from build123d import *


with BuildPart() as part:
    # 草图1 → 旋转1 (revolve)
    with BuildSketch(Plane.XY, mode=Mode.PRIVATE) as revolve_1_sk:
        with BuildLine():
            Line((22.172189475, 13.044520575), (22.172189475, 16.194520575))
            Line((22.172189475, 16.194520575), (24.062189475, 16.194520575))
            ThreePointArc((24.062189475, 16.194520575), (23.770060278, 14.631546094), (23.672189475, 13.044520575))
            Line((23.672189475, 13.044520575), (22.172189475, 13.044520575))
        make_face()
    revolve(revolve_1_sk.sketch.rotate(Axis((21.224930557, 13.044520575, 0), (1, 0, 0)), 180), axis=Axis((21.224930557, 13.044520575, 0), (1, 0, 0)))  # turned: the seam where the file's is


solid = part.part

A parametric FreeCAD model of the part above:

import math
import FreeCAD as App
import Part
import Sketcher

V = App.Vector

doc = App.newDocument("Part")
params = doc.addObject("Spreadsheet::Sheet", "Params")
for row, (alias, value) in enumerate([
    ("sketch1_width", "1.5 mm"),
    ("sketch1_width2", "1.89 mm"),
    ("sketch1_height", "3.15 mm"),
    ("revolution_angle", "360 deg"),
], start=1):
    params.set(f"A{row}", alias)
    params.set(f"B{row}", "=" + value)
    params.setAlias(f"B{row}", alias)

body = doc.addObject("PartDesign::Body", "Body")

# Sketch on XY plane
sketch1 = body.newObject("Sketcher::SketchObject", "Sketch")
sketch1.AttachmentSupport = (doc.getObject("XY_Plane"), [""])
sketch1.MapMode = "FlatFace"
sketch1.addGeometry([
    Part.LineSegment(V(22.2, 16.2, 0), V(22.2, 13, 0)),
    Part.LineSegment(V(22.2, 13, 0), V(23.7, 13, 0)),
    Part.ArcOfCircle(Part.Circle(V(36.6, 13, 0), V(0, 0, 1), 12.9), math.radians(165.88), math.radians(180)),
    Part.LineSegment(V(24.1, 16.2, 0), V(22.2, 16.2, 0)),
], False)
sketch1.addGeometry(Part.LineSegment(V(22.2, 13, 0), V(36.6, 13, 0)), True)  # axis
sketch1.addConstraint([
    Sketcher.Constraint("Coincident", 0, 2, 1, 1),
    Sketcher.Constraint("Coincident", 1, 2, 2, 2),
    Sketcher.Constraint("Coincident", 2, 1, 3, 1),
    Sketcher.Constraint("Coincident", 3, 2, 0, 1),
    Sketcher.Constraint("Vertical", 0),
    Sketcher.Constraint("Horizontal", 1),
    Sketcher.Constraint("Horizontal", 3),
    Sketcher.Constraint("Horizontal", 4),
    Sketcher.Constraint("Coincident", 4, 1, 0, 2),
    Sketcher.Constraint("Coincident", 4, 2, 2, 3),
    Sketcher.Constraint("DistanceX", 1, 1, 1, 2, 1.5),
    Sketcher.Constraint("DistanceX", 3, 2, 3, 1, 1.89),
    Sketcher.Constraint("DistanceY", 0, 2, 0, 1, 3.15),
    Sketcher.Constraint("DistanceY", -1, 1, 2, 3, 13.044521),
    Sketcher.Constraint("DistanceX", -1, 1, 0, 2, 22.172189),
])
sketch1.setExpression("Constraints[10]", "Params.sketch1_width")
sketch1.setExpression("Constraints[11]", "Params.sketch1_width2")
sketch1.setExpression("Constraints[12]", "Params.sketch1_height")
revolution = body.newObject("PartDesign::Revolution", "Revolution")
revolution.Profile = sketch1
revolution.ReferenceAxis = (sketch1, ["Axis0"])
revolution.setExpression("Angle", "Params.revolution_angle")

doc.recompute()
